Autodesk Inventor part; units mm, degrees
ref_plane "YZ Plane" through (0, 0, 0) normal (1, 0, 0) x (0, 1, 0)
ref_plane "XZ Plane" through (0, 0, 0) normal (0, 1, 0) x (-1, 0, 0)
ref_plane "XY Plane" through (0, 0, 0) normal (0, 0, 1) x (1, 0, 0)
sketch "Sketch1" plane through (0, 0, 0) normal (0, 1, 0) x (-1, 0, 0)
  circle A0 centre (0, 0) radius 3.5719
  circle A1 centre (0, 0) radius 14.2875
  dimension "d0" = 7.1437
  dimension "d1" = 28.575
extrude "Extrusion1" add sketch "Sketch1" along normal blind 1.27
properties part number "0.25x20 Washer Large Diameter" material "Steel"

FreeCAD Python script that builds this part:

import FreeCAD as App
import Part
import Sketcher

V = App.Vector
Q = App.Units.Quantity

doc = App.newDocument("Part")
body = doc.addObject("PartDesign::Body", "Body")

sketch1 = doc.addObject("Sketcher::SketchObject", "Sketch")
body.addObject(sketch1)
sketch1.AttachmentSupport = (doc.XZ_Plane, [""])
sketch1.MapMode = "FlatFace"
sketch1.addGeometry(Part.Circle(V(0, 0, 0), V(0, 0, 1), 14.3), False)
sketch1.addGeometry(Part.Circle(V(0, 0, 0), V(0, 0, 1), 3.6), False)
sketch1.addConstraint(Sketcher.Constraint("Coincident", 0, 3, -1, 1))
sketch1.addConstraint(Sketcher.Constraint("Coincident", 1, 3, -1, 1))
sketch1.addConstraint(Sketcher.Constraint("Diameter", 0, Q("1.125 in")))
sketch1.addConstraint(Sketcher.Constraint("Diameter", 1, Q("0.281252 in")))
pad1 = doc.addObject("PartDesign::Pad", "Pad")
body.addObject(pad1)
pad1.Profile = sketch1
pad1.Length = Q("0.05 in")
pad1.Reversed = True

doc.recompute()
